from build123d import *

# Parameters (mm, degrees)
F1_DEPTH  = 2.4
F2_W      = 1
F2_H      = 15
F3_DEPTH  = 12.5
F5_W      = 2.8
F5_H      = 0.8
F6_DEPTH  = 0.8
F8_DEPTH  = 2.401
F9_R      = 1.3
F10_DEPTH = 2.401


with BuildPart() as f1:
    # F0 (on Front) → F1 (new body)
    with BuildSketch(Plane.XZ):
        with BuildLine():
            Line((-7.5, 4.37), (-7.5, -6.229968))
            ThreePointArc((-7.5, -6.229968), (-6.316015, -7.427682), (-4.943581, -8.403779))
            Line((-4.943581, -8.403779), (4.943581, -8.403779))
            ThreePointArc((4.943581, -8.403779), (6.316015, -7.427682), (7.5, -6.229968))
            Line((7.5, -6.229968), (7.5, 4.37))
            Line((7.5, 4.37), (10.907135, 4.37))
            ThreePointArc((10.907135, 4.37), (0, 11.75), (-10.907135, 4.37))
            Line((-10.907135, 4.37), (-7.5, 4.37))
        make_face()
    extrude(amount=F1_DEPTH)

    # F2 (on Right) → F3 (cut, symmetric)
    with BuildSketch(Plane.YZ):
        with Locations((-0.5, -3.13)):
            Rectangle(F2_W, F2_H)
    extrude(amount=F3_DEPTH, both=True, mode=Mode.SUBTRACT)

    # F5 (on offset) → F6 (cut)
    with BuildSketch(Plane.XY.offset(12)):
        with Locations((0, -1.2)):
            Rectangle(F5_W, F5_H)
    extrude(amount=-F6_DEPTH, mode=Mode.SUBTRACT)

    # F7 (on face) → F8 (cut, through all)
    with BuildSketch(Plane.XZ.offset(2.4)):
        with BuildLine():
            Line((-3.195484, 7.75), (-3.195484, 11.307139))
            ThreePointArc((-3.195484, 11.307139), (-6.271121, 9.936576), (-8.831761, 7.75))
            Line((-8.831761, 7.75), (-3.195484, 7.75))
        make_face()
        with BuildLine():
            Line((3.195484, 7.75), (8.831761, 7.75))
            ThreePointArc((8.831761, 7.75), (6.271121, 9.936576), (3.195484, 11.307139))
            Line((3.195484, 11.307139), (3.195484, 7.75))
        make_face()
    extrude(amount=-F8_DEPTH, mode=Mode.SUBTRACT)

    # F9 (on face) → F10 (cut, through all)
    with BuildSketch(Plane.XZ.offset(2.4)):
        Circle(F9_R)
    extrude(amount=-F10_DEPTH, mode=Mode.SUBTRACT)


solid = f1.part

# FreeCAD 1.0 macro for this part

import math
import FreeCAD as App
import Part
import Sketcher

V = App.Vector


def add_polygon(sketch, points):
    """Adds a closed chain of lines whose ends are joined by coincident constraints."""
    first, n = sketch.GeometryCount, len(points)
    for a, b in zip(points, points[1:] + points[:1]):
        sketch.addGeometry(Part.LineSegment(App.Vector(*a, 0), App.Vector(*b, 0)), False)
    for i in range(n):
        sketch.addConstraint(Sketcher.Constraint("Coincident", first + i, 2, first + (i + 1) % n, 1))

doc = App.newDocument("Part")
params = doc.addObject("Spreadsheet::Sheet", "Params")
for row, (alias, value) in enumerate([
    ("sketch1_radius", "11.75 mm"),
    ("pad1_length", "2.4 mm"),
    ("sketch2_width", "1 mm"),
    ("sketch2_height", "15 mm"),
    ("pocket1_length", "25 mm"),
    ("sketch3_width", "2.8 mm"),
    ("sketch3_height", "0.8 mm"),
    ("pocket2_length", "0.8 mm"),
    ("sketch5_diameter", "2.6 mm"),
], start=1):
    params.set(f"A{row}", alias)
    params.set(f"B{row}", "=" + value)
    params.setAlias(f"B{row}", alias)

body = doc.addObject("PartDesign::Body", "Body")

sketch1 = body.newObject("Sketcher::SketchObject", "Sketch")
sketch1.AttachmentSupport = (doc.getObject("XZ_Plane"), [""])
sketch1.MapMode = "FlatFace"
sketch1.addGeometry([
    Part.LineSegment(V(-7.5, 4.37, 0), V(-7.5, -6.229968, 0)),
    Part.ArcOfCircle(Part.Circle(V(-0.000017, -0.000019, 0), V(0, 0, 1), 9.749975), math.radians(-140.284882), math.radians(-120.466433)),
    Part.LineSegment(V(-4.943581, -8.403779, 0), V(4.943581, -8.403779, 0)),
    Part.ArcOfCircle(Part.Circle(V(0.000017, -0.000019, 0), V(0, 0, 1), 9.749975), math.radians(-59.533567), math.radians(-39.715118)),
    Part.LineSegment(V(7.5, -6.229968, 0), V(7.5, 4.37, 0)),
    Part.LineSegment(V(7.5, 4.37, 0), V(10.907135, 4.37, 0)),
    Part.ArcOfCircle(Part.Circle(V(0, 0, 0), V(0, 0, 1), 11.75), math.radians(21.833761), math.radians(158.166239)),
    Part.LineSegment(V(-10.907135, 4.37, 0), V(-7.5, 4.37, 0)),
], False)
sketch1.addConstraint([
    Sketcher.Constraint("Coincident", 0, 2, 1, 1),
    Sketcher.Constraint("Coincident", 1, 2, 2, 1),
    Sketcher.Constraint("Coincident", 2, 2, 3, 1),
    Sketcher.Constraint("Coincident", 3, 2, 4, 1),
    Sketcher.Constraint("Coincident", 4, 2, 5, 1),
    Sketcher.Constraint("Coincident", 5, 2, 6, 1),
    Sketcher.Constraint("Coincident", 6, 2, 7, 1),
    Sketcher.Constraint("Coincident", 7, 2, 0, 1),
    Sketcher.Constraint("Vertical", 0),
    Sketcher.Constraint("Horizontal", 2),
    Sketcher.Constraint("Vertical", 4),
    Sketcher.Constraint("Horizontal", 5),
    Sketcher.Constraint("Horizontal", 7),
    Sketcher.Constraint("Coincident", 6, 3, -1, 1),
    Sketcher.Constraint("Equal", 1, 3),
    Sketcher.Constraint("Symmetric", 1, 3, 3, 3, -2),
    Sketcher.Constraint("Symmetric", 4, 2, 7, 2, -2),
    Sketcher.Constraint("Radius", 6, 11.75),
    Sketcher.Constraint("DistanceX", 0, 2, -1, 1, 7.5),
    Sketcher.Constraint("DistanceY", -1, 1, 4, 2, 4.37),
    Sketcher.Constraint("Radius", 1, 9.749975),
    Sketcher.Constraint("DistanceX", 1, 2, 3, 3, 4.943598),
    Sketcher.Constraint("DistanceX", 2, 1, 2, 2, 9.887162),
    Sketcher.Constraint("DistanceY", 0, 2, 0, 1, 10.599968),
])
sketch1.setExpression("Constraints[17]", "Params.sketch1_radius")
pad1 = body.newObject("PartDesign::Pad", "Pad")
pad1.Profile = sketch1
pad1.setExpression("Length", "Params.pad1_length")

sketch2 = body.newObject("Sketcher::SketchObject", "Sketch001")
sketch2.AttachmentSupport = (doc.getObject("YZ_Plane"), [""])
sketch2.MapMode = "FlatFace"
add_polygon(sketch2, [(-1, 4.37), (-1, -10.63), (0, -10.63), (0, 4.37)])
sketch2.addConstraint([
    Sketcher.Constraint("Vertical", 0),
    Sketcher.Constraint("Horizontal", 1),
    Sketcher.Constraint("Vertical", 2),
    Sketcher.Constraint("Horizontal", 3),
    Sketcher.Constraint("PointOnObject", 1, 2, -2),
    Sketcher.Constraint("DistanceX", 1, 1, 1, 2, 1.0),
    Sketcher.Constraint("DistanceY", 0, 2, 0, 1, 15.0),
    Sketcher.Constraint("DistanceY", 0, 2, -1, 1, 10.63),
])
sketch2.setExpression("Constraints[9]", "Params.sketch2_width")
sketch2.setExpression("Constraints[10]", "Params.sketch2_height")
pocket1 = body.newObject("PartDesign::Pocket", "Pocket")
pocket1.Profile = sketch2
pocket1.setExpression("Length", "Params.pocket1_length")
pocket1.Midplane = True

sketch3 = body.newObject("Sketcher::SketchObject", "Sketch002")
sketch3.AttachmentSupport = (doc.getObject("XY_Plane"), [""])
sketch3.MapMode = "FlatFace"
sketch3.AttachmentOffset = App.Placement(V(0, 0, 12), App.Rotation())
add_polygon(sketch3, [(-1.4, -0.8), (-1.4, -1.6), (1.4, -1.6), (1.4, -0.8)])
sketch3.addConstraint([
    Sketcher.Constraint("Vertical", 0),
    Sketcher.Constraint("Horizontal", 1),
    Sketcher.Constraint("Vertical", 2),
    Sketcher.Constraint("Horizontal", 3),
    Sketcher.Constraint("DistanceX", 1, 1, 1, 2, 2.8),
    Sketcher.Constraint("DistanceY", 0, 2, 0, 1, 0.8),
    Sketcher.Constraint("DistanceX", 0, 2, -1, 1, 1.4),
    Sketcher.Constraint("DistanceY", 0, 2, -1, 1, 1.6),
])
sketch3.setExpression("Constraints[8]", "Params.sketch3_width")
sketch3.setExpression("Constraints[9]", "Params.sketch3_height")
pocket2 = body.newObject("PartDesign::Pocket", "Pocket001")
pocket2.Profile = sketch3
pocket2.setExpression("Length", "Params.pocket2_length")

sketch4 = body.newObject("Sketcher::SketchObject", "Sketch003")
sketch4.AttachmentSupport = (doc.getObject("XZ_Plane"), [""])
sketch4.MapMode = "FlatFace"
sketch4.AttachmentOffset = App.Placement(V(0, 0, 2.4), App.Rotation())
sketch4.addGeometry([
    Part.LineSegment(V(-3.195484, 7.75, 0), V(-3.195484, 11.307139, 0)),
    Part.ArcOfCircle(Part.Circle(V(0.000003, -0.000004, 0), V(0, 0, 1), 11.750005), math.radians(105.780708), math.radians(138.732568)),
    Part.LineSegment(V(-8.831761, 7.75, 0), V(-3.195484, 7.75, 0)),
    Part.LineSegment(V(3.195484, 7.75, 0), V(8.831761, 7.75, 0)),
    Part.ArcOfCircle(Part.Circle(V(-0.000003, -0.000004, 0), V(0, 0, 1), 11.750005), math.radians(41.267432), math.radians(74.219292)),
    Part.LineSegment(V(3.195484, 11.307139, 0), V(3.195484, 7.75, 0)),
], False)
sketch4.addConstraint([
    Sketcher.Constraint("Coincident", 0, 2, 1, 1),
    Sketcher.Constraint("Coincident", 1, 2, 2, 1),
    Sketcher.Constraint("Coincident", 2, 2, 0, 1),
    Sketcher.Constraint("Coincident", 3, 2, 4, 1),
    Sketcher.Constraint("Coincident", 4, 2, 5, 1),
    Sketcher.Constraint("Coincident", 5, 2, 3, 1),
    Sketcher.Constraint("Vertical", 0),
    Sketcher.Constraint("Horizontal", 2),
    Sketcher.Constraint("Horizontal", 3),
    Sketcher.Constraint("Vertical", 5),
    Sketcher.Constraint("Coincident", 1, 3, -1, 1),
    Sketcher.Constraint("Coincident", 4, 3, -1, 1),
    Sketcher.Constraint("Equal", 1, 4),
    Sketcher.Constraint("Symmetric", 2, 2, 5, 2, -2),
    Sketcher.Constraint("DistanceY", -1, 1, 1, 2, 7.75),
    Sketcher.Constraint("Radius", 1, 11.750005),
    Sketcher.Constraint("DistanceY", 0, 1, 0, 2, 3.557139),
])
pocket3 = body.newObject("PartDesign::Pocket", "Pocket002")
pocket3.Profile = sketch4
pocket3.Type = "ThroughAll"

sketch5 = body.newObject("Sketcher::SketchObject", "Sketch004")
sketch5.AttachmentSupport = (doc.getObject("XZ_Plane"), [""])
sketch5.MapMode = "FlatFace"
sketch5.AttachmentOffset = App.Placement(V(0, 0, 2.4), App.Rotation())
sketch5.addGeometry(Part.Circle(V(0, 0, 0), V(0, 0, 1), 1.3), False)
sketch5.addConstraint([
    Sketcher.Constraint("Coincident", 0, 3, -1, 1),
    Sketcher.Constraint("Diameter", 0, 2.6),
])
sketch5.setExpression("Constraints[1]", "Params.sketch5_diameter")
pocket4 = body.newObject("PartDesign::Pocket", "Pocket003")
pocket4.Profile = sketch5
pocket4.Type = "ThroughAll"

doc.recompute()
